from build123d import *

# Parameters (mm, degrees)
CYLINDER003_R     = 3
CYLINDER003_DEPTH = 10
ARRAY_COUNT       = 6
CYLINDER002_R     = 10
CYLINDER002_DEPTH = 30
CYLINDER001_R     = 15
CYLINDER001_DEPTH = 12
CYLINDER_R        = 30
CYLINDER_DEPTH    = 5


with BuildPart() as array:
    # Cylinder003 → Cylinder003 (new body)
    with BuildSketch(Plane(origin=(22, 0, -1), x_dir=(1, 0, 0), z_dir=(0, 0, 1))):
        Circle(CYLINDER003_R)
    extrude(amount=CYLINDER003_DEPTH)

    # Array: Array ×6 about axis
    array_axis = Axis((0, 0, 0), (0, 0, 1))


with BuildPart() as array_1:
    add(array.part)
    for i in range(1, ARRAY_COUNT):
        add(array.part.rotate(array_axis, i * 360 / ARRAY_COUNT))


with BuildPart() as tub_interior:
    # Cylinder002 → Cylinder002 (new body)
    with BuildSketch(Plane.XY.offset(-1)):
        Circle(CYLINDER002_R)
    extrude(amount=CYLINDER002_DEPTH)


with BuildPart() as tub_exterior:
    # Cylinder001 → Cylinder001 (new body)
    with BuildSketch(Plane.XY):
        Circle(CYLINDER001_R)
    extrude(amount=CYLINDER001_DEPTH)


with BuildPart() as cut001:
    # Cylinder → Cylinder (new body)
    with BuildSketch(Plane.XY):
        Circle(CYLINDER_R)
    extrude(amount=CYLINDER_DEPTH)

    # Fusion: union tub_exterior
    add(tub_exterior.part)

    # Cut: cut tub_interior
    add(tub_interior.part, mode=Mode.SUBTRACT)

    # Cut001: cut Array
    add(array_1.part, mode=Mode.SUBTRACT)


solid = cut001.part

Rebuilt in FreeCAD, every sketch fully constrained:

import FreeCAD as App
import Part
import Sketcher

doc = App.newDocument("Part")
body = doc.addObject("PartDesign::Body", "Body")

sketch1 = body.newObject("Sketcher::SketchObject", "Sketch")
sketch1.AttachmentSupport = (doc.getObject("XY_Plane"), [""])
sketch1.MapMode = "FlatFace"
sketch1.AttachmentOffset = App.Placement(App.Vector(0, 0, -1), App.Rotation())
sketch1.addGeometry(Part.Circle(App.Vector(22, 0, 0), App.Vector(0, 0, 1), 3), False)
sketch1.addConstraint([
    Sketcher.Constraint("PointOnObject", 0, 3, -1),
    Sketcher.Constraint("Diameter", 0, 6.0),
    Sketcher.Constraint("DistanceX", -1, 1, 0, 3, 22.0),
])
pad1 = body.newObject("PartDesign::Pad", "Pad")
pad1.Profile = sketch1
pad1.Length = 10
body2 = doc.addObject("PartDesign::Body", "Body001")
body2.AllowCompound = True
doc.recompute()

body2.BaseFeature = body
doc.recompute()

body3 = doc.addObject("PartDesign::Body", "Body002")
body3.BaseFeature = body
body3.Placement = App.Placement(App.Vector(0, 0, 0), App.Rotation(App.Vector(0, 0, 1), 60))
boolean = body2.newObject("PartDesign::Boolean", "Boolean")
boolean.Type = "Fuse"
boolean.addObjects([body3])
doc.recompute()

body4 = doc.addObject("PartDesign::Body", "Body003")
body4.BaseFeature = body
body4.Placement = App.Placement(App.Vector(0, 0, 0), App.Rotation(App.Vector(0, 0, 1), 120))
boolean2 = body2.newObject("PartDesign::Boolean", "Boolean001")
boolean2.Type = "Fuse"
boolean2.addObjects([body4])
doc.recompute()

body5 = doc.addObject("PartDesign::Body", "Body004")
body5.BaseFeature = body
body5.Placement = App.Placement(App.Vector(0, 0, 0), App.Rotation(App.Vector(0, 0, 1), 180))
boolean3 = body2.newObject("PartDesign::Boolean", "Boolean002")
boolean3.Type = "Fuse"
boolean3.addObjects([body5])
doc.recompute()

body6 = doc.addObject("PartDesign::Body", "Body005")
body6.BaseFeature = body
body6.Placement = App.Placement(App.Vector(0, 0, 0), App.Rotation(App.Vector(0, 0, 1), 240))
boolean4 = body2.newObject("PartDesign::Boolean", "Boolean003")
boolean4.Type = "Fuse"
boolean4.addObjects([body6])
doc.recompute()

body.Placement = App.Placement(App.Vector(0, 0, 0), App.Rotation(App.Vector(0, 0, 1), 300))
boolean5 = body2.newObject("PartDesign::Boolean", "Boolean004")
boolean5.Type = "Fuse"
boolean5.addObjects([body])
body7 = doc.addObject("PartDesign::Body", "Body006")

sketch2 = body7.newObject("Sketcher::SketchObject", "Sketch001")
sketch2.AttachmentSupport = (doc.getObject("XY_Plane006"), [""])
sketch2.MapMode = "FlatFace"
sketch2.AttachmentOffset = App.Placement(App.Vector(0, 0, -1), App.Rotation())
sketch2.addGeometry(Part.Circle(App.Vector(0, 0, 0), App.Vector(0, 0, 1), 10), False)
sketch2.addConstraint([
    Sketcher.Constraint("Coincident", 0, 3, -1, 1),
    Sketcher.Constraint("Diameter", 0, 20.0),
])
pad2 = body7.newObject("PartDesign::Pad", "Pad001")
pad2.Profile = sketch2
pad2.Length = 30
body8 = doc.addObject("PartDesign::Body", "Body007")

sketch3 = body8.newObject("Sketcher::SketchObject", "Sketch002")
sketch3.AttachmentSupport = (doc.getObject("XY_Plane007"), [""])
sketch3.MapMode = "FlatFace"
sketch3.addGeometry(Part.Circle(App.Vector(0, 0, 0), App.Vector(0, 0, 1), 15), False)
sketch3.addConstraint([
    Sketcher.Constraint("Coincident", 0, 3, -1, 1),
    Sketcher.Constraint("Diameter", 0, 30.0),
])
pad3 = body8.newObject("PartDesign::Pad", "Pad002")
pad3.Profile = sketch3
pad3.Length = 12
body9 = doc.addObject("PartDesign::Body", "Body008")

sketch4 = body9.newObject("Sketcher::SketchObject", "Sketch003")
sketch4.AttachmentSupport = (doc.getObject("XY_Plane008"), [""])
sketch4.MapMode = "FlatFace"
sketch4.addGeometry(Part.Circle(App.Vector(0, 0, 0), App.Vector(0, 0, 1), 30), False)
sketch4.addConstraint([
    Sketcher.Constraint("Coincident", 0, 3, -1, 1),
    Sketcher.Constraint("Diameter", 0, 60.0),
])
pad4 = body9.newObject("PartDesign::Pad", "Pad003")
pad4.Profile = sketch4
pad4.Length = 5
doc.recompute()

boolean6 = body9.newObject("PartDesign::Boolean", "Boolean005")
boolean6.Type = "Fuse"
boolean6.addObjects([body8])
doc.recompute()

boolean7 = body9.newObject("PartDesign::Boolean", "Boolean006")
boolean7.Type = "Cut"
boolean7.addObjects([body7])
doc.recompute()

boolean8 = body9.newObject("PartDesign::Boolean", "Boolean007")
boolean8.Type = "Cut"
boolean8.addObjects([body2])

doc.recompute()
